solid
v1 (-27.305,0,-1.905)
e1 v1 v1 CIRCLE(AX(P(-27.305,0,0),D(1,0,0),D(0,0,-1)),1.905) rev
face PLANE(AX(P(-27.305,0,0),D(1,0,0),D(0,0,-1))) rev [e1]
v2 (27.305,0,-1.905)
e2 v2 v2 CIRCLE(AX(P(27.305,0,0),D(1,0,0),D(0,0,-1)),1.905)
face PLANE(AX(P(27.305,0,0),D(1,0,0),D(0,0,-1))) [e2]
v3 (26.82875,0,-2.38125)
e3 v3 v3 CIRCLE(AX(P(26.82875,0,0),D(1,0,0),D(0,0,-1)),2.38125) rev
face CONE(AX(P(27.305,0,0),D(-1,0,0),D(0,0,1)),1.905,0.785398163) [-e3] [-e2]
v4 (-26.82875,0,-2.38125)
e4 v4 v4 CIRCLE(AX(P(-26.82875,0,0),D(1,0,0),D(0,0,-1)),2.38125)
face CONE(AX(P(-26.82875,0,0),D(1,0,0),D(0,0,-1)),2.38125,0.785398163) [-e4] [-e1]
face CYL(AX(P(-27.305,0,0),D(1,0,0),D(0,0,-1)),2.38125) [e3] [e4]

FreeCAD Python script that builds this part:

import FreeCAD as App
import Part
import Sketcher
Q = App.Units.Quantity


def edges_at(feature, points):
    """Names of the edges that pass closest to the given points."""
    edges = feature.Shape.Edges
    near = lambda p: min(range(len(edges)), key=lambda i: edges[i].distToShape(Part.Vertex(*p))[0])
    return sorted({f"Edge{near(p) + 1}" for p in points})

doc = App.newDocument("Part")
body = doc.addObject("PartDesign::Body", "Body")

sketch1 = doc.addObject("Sketcher::SketchObject", "Sketch")
body.addObject(sketch1)
sketch1.AttachmentSupport = (doc.YZ_Plane, [""])
sketch1.MapMode = "FlatFace"
sketch1.addGeometry(Part.Circle(App.Vector(0, 0, 0), App.Vector(0, 0, 1), 2.4), False)
sketch1.addConstraint(Sketcher.Constraint("Coincident", 0, 3, -1, 1))
sketch1.addConstraint(Sketcher.Constraint("Diameter", 0, Q("0.1875 in")))
pad1 = doc.addObject("PartDesign::Pad", "Pad")
body.addObject(pad1)
pad1.Profile = sketch1
pad1.Type = "TwoLengths"
pad1.Length = Q("1.075 in")
pad1.Length2 = Q("1.075 in")
doc.recompute()

chamfer = doc.addObject("PartDesign::Chamfer", "Chamfer")
body.addObject(chamfer)
chamfer.Base = (pad1, edges_at(pad1, [(-27.305, 0, 2.381), (27.305, 0, 2.381)]))
chamfer.Size = 0.47625

doc.recompute()
